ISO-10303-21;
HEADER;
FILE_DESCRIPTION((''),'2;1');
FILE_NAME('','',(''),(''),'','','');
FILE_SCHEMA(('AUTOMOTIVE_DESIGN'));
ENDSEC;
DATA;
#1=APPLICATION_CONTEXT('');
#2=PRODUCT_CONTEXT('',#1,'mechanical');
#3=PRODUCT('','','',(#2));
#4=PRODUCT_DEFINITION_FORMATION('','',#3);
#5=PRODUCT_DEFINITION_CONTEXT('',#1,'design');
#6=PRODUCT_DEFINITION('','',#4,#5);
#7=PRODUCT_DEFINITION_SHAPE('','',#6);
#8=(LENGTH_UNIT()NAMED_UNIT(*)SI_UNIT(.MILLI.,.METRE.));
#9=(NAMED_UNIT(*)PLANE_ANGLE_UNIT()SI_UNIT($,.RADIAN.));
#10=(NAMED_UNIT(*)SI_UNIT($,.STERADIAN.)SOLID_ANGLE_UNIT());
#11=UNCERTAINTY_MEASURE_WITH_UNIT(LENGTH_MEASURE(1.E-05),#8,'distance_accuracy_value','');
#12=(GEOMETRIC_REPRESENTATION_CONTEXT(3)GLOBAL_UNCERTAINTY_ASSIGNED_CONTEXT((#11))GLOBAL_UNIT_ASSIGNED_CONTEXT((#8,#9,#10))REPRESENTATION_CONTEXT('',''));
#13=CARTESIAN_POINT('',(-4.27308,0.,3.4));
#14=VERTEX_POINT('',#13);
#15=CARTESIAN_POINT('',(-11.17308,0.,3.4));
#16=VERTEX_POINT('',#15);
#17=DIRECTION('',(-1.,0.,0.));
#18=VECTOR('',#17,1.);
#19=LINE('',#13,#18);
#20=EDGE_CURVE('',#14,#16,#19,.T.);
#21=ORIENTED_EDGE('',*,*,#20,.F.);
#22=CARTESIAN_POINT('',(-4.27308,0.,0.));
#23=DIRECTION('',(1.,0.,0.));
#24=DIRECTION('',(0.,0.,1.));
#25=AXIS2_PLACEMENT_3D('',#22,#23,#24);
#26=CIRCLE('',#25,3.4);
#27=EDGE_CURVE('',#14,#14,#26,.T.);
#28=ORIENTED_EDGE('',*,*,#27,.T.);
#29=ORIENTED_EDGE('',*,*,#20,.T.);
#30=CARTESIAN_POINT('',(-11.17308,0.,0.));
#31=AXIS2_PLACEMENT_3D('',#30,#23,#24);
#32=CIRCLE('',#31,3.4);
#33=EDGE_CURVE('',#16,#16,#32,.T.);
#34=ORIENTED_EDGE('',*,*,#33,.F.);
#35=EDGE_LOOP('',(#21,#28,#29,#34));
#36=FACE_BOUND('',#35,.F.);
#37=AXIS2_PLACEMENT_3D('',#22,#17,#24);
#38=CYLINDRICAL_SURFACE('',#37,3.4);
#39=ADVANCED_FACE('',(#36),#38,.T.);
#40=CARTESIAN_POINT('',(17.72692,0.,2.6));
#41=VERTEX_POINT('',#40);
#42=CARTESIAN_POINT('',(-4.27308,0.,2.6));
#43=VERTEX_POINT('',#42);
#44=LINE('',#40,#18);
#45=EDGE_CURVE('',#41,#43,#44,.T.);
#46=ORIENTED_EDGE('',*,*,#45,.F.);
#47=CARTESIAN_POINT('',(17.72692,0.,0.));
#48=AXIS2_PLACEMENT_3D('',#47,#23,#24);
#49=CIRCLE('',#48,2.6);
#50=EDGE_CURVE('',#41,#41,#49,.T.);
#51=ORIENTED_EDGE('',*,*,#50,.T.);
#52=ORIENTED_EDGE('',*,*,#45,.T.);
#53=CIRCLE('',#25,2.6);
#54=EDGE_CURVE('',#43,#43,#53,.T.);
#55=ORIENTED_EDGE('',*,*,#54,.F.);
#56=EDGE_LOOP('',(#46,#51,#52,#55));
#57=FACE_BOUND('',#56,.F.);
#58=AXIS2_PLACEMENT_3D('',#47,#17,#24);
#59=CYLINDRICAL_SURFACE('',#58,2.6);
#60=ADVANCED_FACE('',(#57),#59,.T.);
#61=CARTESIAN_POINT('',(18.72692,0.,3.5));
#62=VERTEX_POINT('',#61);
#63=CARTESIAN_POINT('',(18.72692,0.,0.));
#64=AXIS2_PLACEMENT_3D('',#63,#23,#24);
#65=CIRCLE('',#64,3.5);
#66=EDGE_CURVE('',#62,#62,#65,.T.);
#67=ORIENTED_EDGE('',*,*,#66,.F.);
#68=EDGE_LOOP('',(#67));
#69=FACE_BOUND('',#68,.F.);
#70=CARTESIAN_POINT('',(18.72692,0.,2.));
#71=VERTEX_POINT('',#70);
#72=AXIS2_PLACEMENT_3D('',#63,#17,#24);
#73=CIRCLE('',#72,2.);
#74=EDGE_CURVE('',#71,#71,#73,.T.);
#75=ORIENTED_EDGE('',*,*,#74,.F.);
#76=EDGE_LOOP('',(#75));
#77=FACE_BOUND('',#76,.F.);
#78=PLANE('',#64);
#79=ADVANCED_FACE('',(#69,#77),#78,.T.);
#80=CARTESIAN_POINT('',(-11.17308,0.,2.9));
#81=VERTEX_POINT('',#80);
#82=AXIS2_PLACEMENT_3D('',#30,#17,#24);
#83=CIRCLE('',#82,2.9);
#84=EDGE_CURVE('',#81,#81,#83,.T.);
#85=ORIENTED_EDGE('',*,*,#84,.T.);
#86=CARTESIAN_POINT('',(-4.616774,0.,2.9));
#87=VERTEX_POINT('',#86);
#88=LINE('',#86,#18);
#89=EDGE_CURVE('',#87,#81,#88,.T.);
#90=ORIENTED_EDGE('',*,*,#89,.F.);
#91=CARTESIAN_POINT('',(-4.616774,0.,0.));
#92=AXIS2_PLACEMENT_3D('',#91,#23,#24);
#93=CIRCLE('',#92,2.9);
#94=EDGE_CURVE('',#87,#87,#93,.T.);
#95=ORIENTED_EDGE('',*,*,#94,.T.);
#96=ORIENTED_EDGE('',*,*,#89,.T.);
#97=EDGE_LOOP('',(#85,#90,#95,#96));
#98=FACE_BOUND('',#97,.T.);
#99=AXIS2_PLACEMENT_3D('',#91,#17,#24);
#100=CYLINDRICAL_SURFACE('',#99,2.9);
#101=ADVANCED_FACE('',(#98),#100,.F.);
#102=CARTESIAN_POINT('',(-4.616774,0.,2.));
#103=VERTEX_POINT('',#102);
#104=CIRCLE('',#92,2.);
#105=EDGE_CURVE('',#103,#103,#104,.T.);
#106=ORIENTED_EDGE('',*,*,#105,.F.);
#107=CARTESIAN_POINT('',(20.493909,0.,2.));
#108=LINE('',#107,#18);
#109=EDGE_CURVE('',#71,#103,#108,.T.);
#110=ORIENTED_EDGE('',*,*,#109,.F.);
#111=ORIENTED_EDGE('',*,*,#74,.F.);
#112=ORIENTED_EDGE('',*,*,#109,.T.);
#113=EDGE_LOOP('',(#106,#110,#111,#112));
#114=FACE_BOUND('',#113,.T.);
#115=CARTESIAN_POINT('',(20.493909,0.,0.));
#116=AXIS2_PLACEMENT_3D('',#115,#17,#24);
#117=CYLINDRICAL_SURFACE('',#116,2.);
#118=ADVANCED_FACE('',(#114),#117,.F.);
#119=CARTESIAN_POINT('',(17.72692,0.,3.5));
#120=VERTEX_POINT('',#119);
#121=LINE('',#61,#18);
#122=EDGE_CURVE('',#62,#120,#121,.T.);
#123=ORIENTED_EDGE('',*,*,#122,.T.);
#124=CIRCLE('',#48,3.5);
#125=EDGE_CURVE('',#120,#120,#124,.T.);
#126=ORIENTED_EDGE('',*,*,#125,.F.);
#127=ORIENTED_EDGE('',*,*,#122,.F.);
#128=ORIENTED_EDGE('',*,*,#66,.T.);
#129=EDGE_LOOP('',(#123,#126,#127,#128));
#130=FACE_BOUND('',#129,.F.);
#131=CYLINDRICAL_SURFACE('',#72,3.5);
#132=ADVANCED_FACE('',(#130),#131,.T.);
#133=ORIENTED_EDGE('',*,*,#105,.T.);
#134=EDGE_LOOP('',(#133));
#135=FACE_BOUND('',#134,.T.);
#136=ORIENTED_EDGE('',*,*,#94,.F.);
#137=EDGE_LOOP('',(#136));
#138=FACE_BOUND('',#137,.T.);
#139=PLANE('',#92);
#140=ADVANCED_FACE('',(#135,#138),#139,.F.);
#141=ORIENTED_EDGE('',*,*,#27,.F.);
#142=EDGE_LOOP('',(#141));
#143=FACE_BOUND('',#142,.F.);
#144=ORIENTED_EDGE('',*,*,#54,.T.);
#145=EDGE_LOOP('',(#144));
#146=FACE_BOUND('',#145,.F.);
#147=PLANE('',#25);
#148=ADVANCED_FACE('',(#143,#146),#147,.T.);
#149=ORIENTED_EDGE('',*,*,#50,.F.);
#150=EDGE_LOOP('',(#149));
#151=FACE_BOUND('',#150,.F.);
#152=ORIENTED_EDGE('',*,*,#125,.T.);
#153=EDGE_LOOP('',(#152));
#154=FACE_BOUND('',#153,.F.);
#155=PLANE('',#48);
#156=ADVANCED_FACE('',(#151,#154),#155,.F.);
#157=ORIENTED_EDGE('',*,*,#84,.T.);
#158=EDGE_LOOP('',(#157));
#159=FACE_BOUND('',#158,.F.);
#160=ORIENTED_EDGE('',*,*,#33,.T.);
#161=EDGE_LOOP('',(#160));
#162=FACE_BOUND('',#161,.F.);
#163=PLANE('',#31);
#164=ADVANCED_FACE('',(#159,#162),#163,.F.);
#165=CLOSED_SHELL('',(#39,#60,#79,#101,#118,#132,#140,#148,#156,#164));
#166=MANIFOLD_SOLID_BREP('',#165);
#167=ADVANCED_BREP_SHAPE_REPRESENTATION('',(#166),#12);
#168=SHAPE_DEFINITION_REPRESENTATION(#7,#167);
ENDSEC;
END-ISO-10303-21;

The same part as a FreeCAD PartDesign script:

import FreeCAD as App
import Part
import Sketcher
from FreeCAD import Vector
Q = App.Units.Quantity

doc = App.newDocument("Part")
params = doc.addObject("Spreadsheet::Sheet", "Params")
for row, (alias, value) in enumerate([
    ("sketch1_width", "1 mm"),
    ("sketch1_width2", "22 mm"),
    ("sketch1_width3", "29.9 mm"),
    ("sketch1_height", "3.4 mm"),
    ("sketch1_height2", "3.5 mm"),
    ("revolution_angle", "360 deg"),
    ("sketch2_height", "2 mm"),
    ("sketch2_width", "7.7 mm"),
    ("sketch2_height2", "2.9 mm"),
    ("groove_angle", "360 deg"),
], start=1):
    params.set(f"A{row}", alias)
    params.set(f"B{row}", "=" + value)
    params.setAlias(f"B{row}", alias)

body = doc.addObject("PartDesign::Body", "Body")

# Sketch on XZ plane
sketch1 = body.newObject("Sketcher::SketchObject", "Sketch")
sketch1.AttachmentSupport = (doc.getObject("XZ_Plane"), [""])
sketch1.MapMode = "FlatFace"
sketch1.addGeometry(Part.LineSegment(Vector(-11.2, 3.4, 0), Vector(-11.2, 0, 0)), False)
sketch1.addGeometry(Part.LineSegment(Vector(-11.2, 0, 0), Vector(18.7, 0, 0)), False)
sketch1.addGeometry(Part.LineSegment(Vector(18.7, 0, 0), Vector(18.7, 3.5, 0)), False)
sketch1.addGeometry(Part.LineSegment(Vector(18.7, 3.5, 0), Vector(17.7, 3.5, 0)), False)
sketch1.addGeometry(Part.LineSegment(Vector(17.7, 3.5, 0), Vector(17.7, 2.6, 0)), False)
sketch1.addGeometry(Part.LineSegment(Vector(17.7, 2.6, 0), Vector(-4.3, 2.6, 0)), False)
sketch1.addGeometry(Part.LineSegment(Vector(-4.3, 2.6, 0), Vector(-4.3, 3.4, 0)), False)
sketch1.addGeometry(Part.LineSegment(Vector(-4.3, 3.4, 0), Vector(-11.2, 3.4, 0)), False)
sketch1.addConstraint(Sketcher.Constraint("Coincident", 0, 2, 1, 1))
sketch1.addConstraint(Sketcher.Constraint("Coincident", 1, 2, 2, 1))
sketch1.addConstraint(Sketcher.Constraint("Coincident", 2, 2, 3, 1))
sketch1.addConstraint(Sketcher.Constraint("Coincident", 3, 2, 4, 1))
sketch1.addConstraint(Sketcher.Constraint("Coincident", 4, 2, 5, 1))
sketch1.addConstraint(Sketcher.Constraint("Coincident", 5, 2, 6, 1))
sketch1.addConstraint(Sketcher.Constraint("Coincident", 6, 2, 7, 1))
sketch1.addConstraint(Sketcher.Constraint("Coincident", 7, 2, 0, 1))
sketch1.addConstraint(Sketcher.Constraint("Vertical", 0))
sketch1.addConstraint(Sketcher.Constraint("Horizontal", 1))
sketch1.addConstraint(Sketcher.Constraint("Vertical", 2))
sketch1.addConstraint(Sketcher.Constraint("Horizontal", 3))
sketch1.addConstraint(Sketcher.Constraint("Vertical", 4))
sketch1.addConstraint(Sketcher.Constraint("Horizontal", 5))
sketch1.addConstraint(Sketcher.Constraint("Vertical", 6))
sketch1.addConstraint(Sketcher.Constraint("Horizontal", 7))
sketch1.addConstraint(Sketcher.Constraint("PointOnObject", 0, 2, -1))
sketch1.addConstraint(Sketcher.Constraint("DistanceX", 3, 2, 3, 1, Q("1 mm")))
sketch1.addConstraint(Sketcher.Constraint("DistanceX", 5, 2, 5, 1, Q("22 mm")))
sketch1.addConstraint(Sketcher.Constraint("DistanceX", 1, 1, 1, 2, Q("29.9 mm")))
sketch1.addConstraint(Sketcher.Constraint("DistanceY", 0, 2, 0, 1, Q("3.4 mm")))
sketch1.addConstraint(Sketcher.Constraint("DistanceY", 2, 1, 2, 2, Q("3.5 mm")))
sketch1.addConstraint(Sketcher.Constraint("DistanceY", 4, 2, 4, 1, Q("0.9 mm")))
sketch1.addConstraint(Sketcher.Constraint("DistanceX", 0, 2, -1, 1, Q("11.17308 mm")))
sketch1.setExpression("Constraints[17]", "Params.sketch1_width")
sketch1.setExpression("Constraints[18]", "Params.sketch1_width2")
sketch1.setExpression("Constraints[19]", "Params.sketch1_width3")
sketch1.setExpression("Constraints[20]", "Params.sketch1_height")
sketch1.setExpression("Constraints[21]", "Params.sketch1_height2")
revolution = body.newObject("PartDesign::Revolution", "Revolution")
revolution.Profile = sketch1
revolution.ReferenceAxis = (sketch1, ["H_Axis"])
revolution.setExpression("Angle", "Params.revolution_angle")

# Sketch on XZ plane
sketch2 = body.newObject("Sketcher::SketchObject", "Sketch001")
sketch2.AttachmentSupport = (doc.getObject("XZ_Plane"), [""])
sketch2.MapMode = "FlatFace"
sketch2.addGeometry(Part.LineSegment(Vector(-12.3, 2.9, 0), Vector(-12.3, 0, 0)), False)
sketch2.addGeometry(Part.LineSegment(Vector(-12.3, 0, 0), Vector(20.5, 0, 0)), False)
sketch2.addGeometry(Part.LineSegment(Vector(20.5, 0, 0), Vector(20.5, 2, 0)), False)
sketch2.addGeometry(Part.LineSegment(Vector(20.5, 2, 0), Vector(-4.6, 2, 0)), False)
sketch2.addGeometry(Part.LineSegment(Vector(-4.6, 2, 0), Vector(-4.6, 2.9, 0)), False)
sketch2.addGeometry(Part.LineSegment(Vector(-4.6, 2.9, 0), Vector(-12.3, 2.9, 0)), False)
sketch2.addConstraint(Sketcher.Constraint("Coincident", 0, 2, 1, 1))
sketch2.addConstraint(Sketcher.Constraint("Coincident", 1, 2, 2, 1))
sketch2.addConstraint(Sketcher.Constraint("Coincident", 2, 2, 3, 1))
sketch2.addConstraint(Sketcher.Constraint("Coincident", 3, 2, 4, 1))
sketch2.addConstraint(Sketcher.Constraint("Coincident", 4, 2, 5, 1))
sketch2.addConstraint(Sketcher.Constraint("Coincident", 5, 2, 0, 1))
sketch2.addConstraint(Sketcher.Constraint("Vertical", 0))
sketch2.addConstraint(Sketcher.Constraint("Horizontal", 1))
sketch2.addConstraint(Sketcher.Constraint("Vertical", 2))
sketch2.addConstraint(Sketcher.Constraint("Horizontal", 3))
sketch2.addConstraint(Sketcher.Constraint("Vertical", 4))
sketch2.addConstraint(Sketcher.Constraint("Horizontal", 5))
sketch2.addConstraint(Sketcher.Constraint("PointOnObject", 0, 2, -1))
sketch2.addConstraint(Sketcher.Constraint("DistanceY", 2, 1, 2, 2, Q("2 mm")))
sketch2.addConstraint(Sketcher.Constraint("DistanceX", 5, 2, 5, 1, Q("7.7 mm")))
sketch2.addConstraint(Sketcher.Constraint("DistanceY", 0, 2, 0, 1, Q("2.9 mm")))
sketch2.addConstraint(Sketcher.Constraint("DistanceX", 1, 1, 1, 2, Q("32.810683 mm")))
sketch2.addConstraint(Sketcher.Constraint("DistanceX", -1, 1, 1, 2, Q("20.493909 mm")))
sketch2.setExpression("Constraints[13]", "Params.sketch2_height")
sketch2.setExpression("Constraints[14]", "Params.sketch2_width")
sketch2.setExpression("Constraints[15]", "Params.sketch2_height2")
groove = body.newObject("PartDesign::Groove", "Groove")
groove.Profile = sketch2
groove.ReferenceAxis = (sketch2, ["H_Axis"])
groove.setExpression("Angle", "Params.groove_angle")

doc.recompute()
